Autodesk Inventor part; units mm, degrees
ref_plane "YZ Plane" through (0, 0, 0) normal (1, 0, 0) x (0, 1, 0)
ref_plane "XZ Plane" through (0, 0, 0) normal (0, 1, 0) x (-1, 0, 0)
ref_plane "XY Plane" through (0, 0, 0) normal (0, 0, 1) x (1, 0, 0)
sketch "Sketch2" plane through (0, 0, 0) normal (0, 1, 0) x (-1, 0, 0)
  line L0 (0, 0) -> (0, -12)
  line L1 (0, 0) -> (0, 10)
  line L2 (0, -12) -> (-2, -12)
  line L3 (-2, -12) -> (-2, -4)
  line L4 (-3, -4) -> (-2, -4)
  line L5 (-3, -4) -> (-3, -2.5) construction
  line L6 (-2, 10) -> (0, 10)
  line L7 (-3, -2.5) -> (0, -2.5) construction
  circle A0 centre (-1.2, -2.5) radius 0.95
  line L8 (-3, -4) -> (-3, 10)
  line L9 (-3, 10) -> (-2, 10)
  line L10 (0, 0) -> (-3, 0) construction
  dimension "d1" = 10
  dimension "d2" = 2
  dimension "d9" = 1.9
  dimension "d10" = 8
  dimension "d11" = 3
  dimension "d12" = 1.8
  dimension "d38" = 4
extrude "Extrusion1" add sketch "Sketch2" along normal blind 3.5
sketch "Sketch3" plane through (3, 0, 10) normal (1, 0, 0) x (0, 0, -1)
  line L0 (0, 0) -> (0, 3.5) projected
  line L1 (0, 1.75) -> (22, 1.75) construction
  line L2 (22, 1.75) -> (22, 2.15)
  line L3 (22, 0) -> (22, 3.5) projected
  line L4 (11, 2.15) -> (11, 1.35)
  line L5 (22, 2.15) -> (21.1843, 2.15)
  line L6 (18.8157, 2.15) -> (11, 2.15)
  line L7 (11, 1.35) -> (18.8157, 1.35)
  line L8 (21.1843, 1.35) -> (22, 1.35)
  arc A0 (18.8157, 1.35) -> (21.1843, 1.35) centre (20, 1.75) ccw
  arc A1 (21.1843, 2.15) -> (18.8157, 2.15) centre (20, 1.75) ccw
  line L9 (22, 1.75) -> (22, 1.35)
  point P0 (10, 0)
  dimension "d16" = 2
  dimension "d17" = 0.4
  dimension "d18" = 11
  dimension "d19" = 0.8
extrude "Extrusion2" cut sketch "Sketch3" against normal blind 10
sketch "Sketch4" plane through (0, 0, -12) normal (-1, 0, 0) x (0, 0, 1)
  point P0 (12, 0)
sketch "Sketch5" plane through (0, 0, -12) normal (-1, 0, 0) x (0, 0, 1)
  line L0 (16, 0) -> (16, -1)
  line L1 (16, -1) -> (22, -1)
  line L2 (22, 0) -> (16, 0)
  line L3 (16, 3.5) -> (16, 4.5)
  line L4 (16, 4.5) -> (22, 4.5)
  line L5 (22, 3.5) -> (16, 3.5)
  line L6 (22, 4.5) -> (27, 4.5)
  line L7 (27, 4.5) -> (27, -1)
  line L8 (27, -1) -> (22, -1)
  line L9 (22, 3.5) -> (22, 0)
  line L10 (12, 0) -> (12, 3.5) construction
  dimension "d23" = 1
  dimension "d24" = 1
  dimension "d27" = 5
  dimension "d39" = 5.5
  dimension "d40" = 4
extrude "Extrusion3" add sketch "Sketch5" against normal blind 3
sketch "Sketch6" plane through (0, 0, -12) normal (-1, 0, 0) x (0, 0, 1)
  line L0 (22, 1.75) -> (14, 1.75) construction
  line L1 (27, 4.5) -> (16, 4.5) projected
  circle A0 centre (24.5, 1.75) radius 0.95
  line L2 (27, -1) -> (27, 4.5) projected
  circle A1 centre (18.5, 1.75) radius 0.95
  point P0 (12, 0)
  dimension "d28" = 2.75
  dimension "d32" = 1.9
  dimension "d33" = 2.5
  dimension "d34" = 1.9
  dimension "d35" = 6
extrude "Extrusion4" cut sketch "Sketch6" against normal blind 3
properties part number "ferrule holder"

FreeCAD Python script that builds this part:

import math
import FreeCAD as App
import Part
import Sketcher
from FreeCAD import Vector
Q = App.Units.Quantity

doc = App.newDocument("Part")
body = doc.addObject("PartDesign::Body", "Body")

# Sketch on XZ plane
sketch1 = body.newObject("Sketcher::SketchObject", "Sketch")
sketch1.AttachmentSupport = (doc.getObject("XZ_Plane"), [""])
sketch1.MapMode = "FlatFace"
sketch1.addGeometry(Part.LineSegment(Vector(0, -12, 0), Vector(0, 10, 0)), False)
sketch1.addGeometry(Part.LineSegment(Vector(0, 10, 0), Vector(3, 10, 0)), False)
sketch1.addGeometry(Part.LineSegment(Vector(3, 10, 0), Vector(3, -4, 0)), False)
sketch1.addGeometry(Part.LineSegment(Vector(3, -4, 0), Vector(2, -4, 0)), False)
sketch1.addGeometry(Part.LineSegment(Vector(2, -4, 0), Vector(2, -12, 0)), False)
sketch1.addGeometry(Part.LineSegment(Vector(2, -12, 0), Vector(0, -12, 0)), False)
sketch1.addGeometry(Part.Circle(Vector(1.2, -2.5, 0), Vector(0, 0, 1), 0.95), False)
sketch1.addConstraint(Sketcher.Constraint("Coincident", 0, 2, 1, 1))
sketch1.addConstraint(Sketcher.Constraint("Coincident", 1, 2, 2, 1))
sketch1.addConstraint(Sketcher.Constraint("Coincident", 2, 2, 3, 1))
sketch1.addConstraint(Sketcher.Constraint("Coincident", 3, 2, 4, 1))
sketch1.addConstraint(Sketcher.Constraint("Coincident", 4, 2, 5, 1))
sketch1.addConstraint(Sketcher.Constraint("Coincident", 5, 2, 0, 1))
sketch1.addConstraint(Sketcher.Constraint("Vertical", 0))
sketch1.addConstraint(Sketcher.Constraint("Horizontal", 1))
sketch1.addConstraint(Sketcher.Constraint("Vertical", 2))
sketch1.addConstraint(Sketcher.Constraint("Horizontal", 3))
sketch1.addConstraint(Sketcher.Constraint("Vertical", 4))
sketch1.addConstraint(Sketcher.Constraint("Horizontal", 5))
sketch1.addConstraint(Sketcher.Constraint("PointOnObject", 0, 2, -2))
sketch1.addConstraint(Sketcher.Constraint("Diameter", 6, Q("1.9 mm")))
sketch1.addConstraint(Sketcher.Constraint("DistanceX", 1, 1, 1, 2, Q("3 mm")))
sketch1.addConstraint(Sketcher.Constraint("DistanceX", 5, 2, 5, 1, Q("2 mm")))
sketch1.addConstraint(Sketcher.Constraint("DistanceY", 4, 2, 4, 1, Q("8 mm")))
sketch1.addConstraint(Sketcher.Constraint("DistanceY", -1, 1, 0, 2, Q("10 mm")))
sketch1.addConstraint(Sketcher.Constraint("DistanceY", 2, 2, -1, 1, Q("4 mm")))
sketch1.addConstraint(Sketcher.Constraint("DistanceX", 6, 3, 1, 2, Q("1.8 mm")))
sketch1.addConstraint(Sketcher.Constraint("DistanceY", 6, 3, -1, 1, Q("2.5 mm")))
pad1 = body.newObject("PartDesign::Pad", "Pad")
pad1.Profile = sketch1
pad1.Length = 3.5
pad1.Reversed = True

# Sketch on YZ plane
sketch2 = body.newObject("Sketcher::SketchObject", "Sketch001")
sketch2.AttachmentSupport = (doc.getObject("YZ_Plane"), [""])
sketch2.MapMode = "FlatFace"
sketch2.AttachmentOffset = App.Placement(Vector(0, 0, 3), App.Rotation())
sketch2.addGeometry(Part.LineSegment(Vector(1.35, -12, 0), Vector(2.15, -12, 0)), False)
sketch2.addGeometry(Part.LineSegment(Vector(2.15, -12, 0), Vector(2.15, -11.1843, 0)), False)
sketch2.addGeometry(Part.ArcOfCircle(Part.Circle(Vector(1.75, -10, 0), Vector(0, 0, 1), 1.250027), math.radians(-71.337487), math.radians(71.337487)), False)
sketch2.addGeometry(Part.LineSegment(Vector(2.15, -8.8157, 0), Vector(2.15, -1, 0)), False)
sketch2.addGeometry(Part.LineSegment(Vector(2.15, -1, 0), Vector(1.35, -1, 0)), False)
sketch2.addGeometry(Part.LineSegment(Vector(1.35, -1, 0), Vector(1.35, -8.8157, 0)), False)
sketch2.addGeometry(Part.ArcOfCircle(Part.Circle(Vector(1.75, -10, 0), Vector(0, 0, 1), 1.250027), math.radians(108.662513), math.radians(251.337487)), False)
sketch2.addGeometry(Part.LineSegment(Vector(1.35, -11.1843, 0), Vector(1.35, -12, 0)), False)
sketch2.addConstraint(Sketcher.Constraint("Coincident", 0, 2, 1, 1))
sketch2.addConstraint(Sketcher.Constraint("Coincident", 1, 2, 2, 1))
sketch2.addConstraint(Sketcher.Constraint("Coincident", 2, 2, 3, 1))
sketch2.addConstraint(Sketcher.Constraint("Coincident", 3, 2, 4, 1))
sketch2.addConstraint(Sketcher.Constraint("Coincident", 4, 2, 5, 1))
sketch2.addConstraint(Sketcher.Constraint("Coincident", 5, 2, 6, 1))
sketch2.addConstraint(Sketcher.Constraint("Coincident", 6, 2, 7, 1))
sketch2.addConstraint(Sketcher.Constraint("Coincident", 7, 2, 0, 1))
sketch2.addConstraint(Sketcher.Constraint("Horizontal", 0))
sketch2.addConstraint(Sketcher.Constraint("Vertical", 1))
sketch2.addConstraint(Sketcher.Constraint("Vertical", 3))
sketch2.addConstraint(Sketcher.Constraint("Horizontal", 4))
sketch2.addConstraint(Sketcher.Constraint("Vertical", 5))
sketch2.addConstraint(Sketcher.Constraint("Vertical", 7))
sketch2.addConstraint(Sketcher.Constraint("Coincident", 6, 3, 2, 3))
sketch2.addConstraint(Sketcher.Constraint("Equal", 2, 6))
sketch2.addConstraint(Sketcher.Constraint("Horizontal", 2, 2, 5, 2))
sketch2.addConstraint(Sketcher.Constraint("Horizontal", 1, 2, 6, 2))
sketch2.addConstraint(Sketcher.Constraint("Vertical", 1, 2, 2, 2))
sketch2.addConstraint(Sketcher.Constraint("DistanceX", 0, 1, 0, 2, Q("0.8 mm")))
sketch2.addConstraint(Sketcher.Constraint("DistanceY", 0, 2, 2, 3, Q("2 mm")))
sketch2.addConstraint(Sketcher.Constraint("DistanceY", 0, 2, 3, 2, Q("11 mm")))
sketch2.addConstraint(Sketcher.Constraint("Radius", 2, Q("1.25 mm")))
sketch2.addConstraint(Sketcher.Constraint("DistanceY", 2, 3, -1, 1, Q("10 mm")))
sketch2.addConstraint(Sketcher.Constraint("DistanceX", -1, 1, 2, 3, Q("1.75 mm")))
pocket1 = body.newObject("PartDesign::Pocket", "Pocket")
pocket1.Profile = sketch2
pocket1.Length = 10

# Sketch on YZ plane
sketch3 = body.newObject("Sketcher::SketchObject", "Sketch002")
sketch3.AttachmentSupport = (doc.getObject("YZ_Plane"), [""])
sketch3.MapMode = "FlatFace"
sketch3.addGeometry(Part.LineSegment(Vector(0, 10, 0), Vector(0, 4, 0)), False)
sketch3.addGeometry(Part.LineSegment(Vector(0, 4, 0), Vector(-1, 4, 0)), False)
sketch3.addGeometry(Part.LineSegment(Vector(-1, 4, 0), Vector(-1, 15, 0)), False)
sketch3.addGeometry(Part.LineSegment(Vector(-1, 15, 0), Vector(4.5, 15, 0)), False)
sketch3.addGeometry(Part.LineSegment(Vector(4.5, 15, 0), Vector(4.5, 4, 0)), False)
sketch3.addGeometry(Part.LineSegment(Vector(4.5, 4, 0), Vector(3.5, 4, 0)), False)
sketch3.addGeometry(Part.LineSegment(Vector(3.5, 4, 0), Vector(3.5, 10, 0)), False)
sketch3.addGeometry(Part.LineSegment(Vector(3.5, 10, 0), Vector(0, 10, 0)), False)
sketch3.addConstraint(Sketcher.Constraint("Coincident", 0, 2, 1, 1))
sketch3.addConstraint(Sketcher.Constraint("Coincident", 1, 2, 2, 1))
sketch3.addConstraint(Sketcher.Constraint("Coincident", 2, 2, 3, 1))
sketch3.addConstraint(Sketcher.Constraint("Coincident", 3, 2, 4, 1))
sketch3.addConstraint(Sketcher.Constraint("Coincident", 4, 2, 5, 1))
sketch3.addConstraint(Sketcher.Constraint("Coincident", 5, 2, 6, 1))
sketch3.addConstraint(Sketcher.Constraint("Coincident", 6, 2, 7, 1))
sketch3.addConstraint(Sketcher.Constraint("Coincident", 7, 2, 0, 1))
sketch3.addConstraint(Sketcher.Constraint("Vertical", 0))
sketch3.addConstraint(Sketcher.Constraint("Horizontal", 1))
sketch3.addConstraint(Sketcher.Constraint("Vertical", 2))
sketch3.addConstraint(Sketcher.Constraint("Horizontal", 3))
sketch3.addConstraint(Sketcher.Constraint("Vertical", 4))
sketch3.addConstraint(Sketcher.Constraint("Horizontal", 5))
sketch3.addConstraint(Sketcher.Constraint("Vertical", 6))
sketch3.addConstraint(Sketcher.Constraint("Horizontal", 7))
sketch3.addConstraint(Sketcher.Constraint("PointOnObject", 0, 2, -2))
sketch3.addConstraint(Sketcher.Constraint("Horizontal", 1, 2, 4, 2))
sketch3.addConstraint(Sketcher.Constraint("Equal", 1, 5))
sketch3.addConstraint(Sketcher.Constraint("DistanceX", 1, 2, 1, 1, Q("1 mm")))
sketch3.addConstraint(Sketcher.Constraint("DistanceX", 3, 1, 3, 2, Q("5.5 mm")))
sketch3.addConstraint(Sketcher.Constraint("DistanceY", -1, 1, 0, 2, Q("4 mm")))
sketch3.addConstraint(Sketcher.Constraint("DistanceY", 6, 2, 3, 2, Q("5 mm")))
sketch3.addConstraint(Sketcher.Constraint("DistanceY", 0, 2, 0, 1, Q("6 mm")))
pad2 = body.newObject("PartDesign::Pad", "Pad001")
pad2.Profile = sketch3
pad2.Length = 3

# Sketch on YZ plane
sketch4 = body.newObject("Sketcher::SketchObject", "Sketch003")
sketch4.AttachmentSupport = (doc.getObject("YZ_Plane"), [""])
sketch4.MapMode = "FlatFace"
sketch4.addGeometry(Part.Circle(Vector(1.75, 12.5, 0), Vector(0, 0, 1), 0.95), False)
sketch4.addGeometry(Part.Circle(Vector(1.75, 6.5, 0), Vector(0, 0, 1), 0.95), False)
sketch4.addConstraint(Sketcher.Constraint("Equal", 0, 1))
sketch4.addConstraint(Sketcher.Constraint("Vertical", 0, 3, 1, 3))
sketch4.addConstraint(Sketcher.Constraint("Diameter", 0, Q("1.9 mm")))
sketch4.addConstraint(Sketcher.Constraint("DistanceY", 1, 3, 0, 3, Q("6 mm")))
sketch4.addConstraint(Sketcher.Constraint("DistanceY", -1, 1, 0, 3, Q("12.5 mm")))
sketch4.addConstraint(Sketcher.Constraint("DistanceX", -1, 1, 0, 3, Q("1.75 mm")))
pocket2 = body.newObject("PartDesign::Pocket", "Pocket001")
pocket2.Profile = sketch4
pocket2.Length = 3
pocket2.Reversed = True

doc.recompute()
